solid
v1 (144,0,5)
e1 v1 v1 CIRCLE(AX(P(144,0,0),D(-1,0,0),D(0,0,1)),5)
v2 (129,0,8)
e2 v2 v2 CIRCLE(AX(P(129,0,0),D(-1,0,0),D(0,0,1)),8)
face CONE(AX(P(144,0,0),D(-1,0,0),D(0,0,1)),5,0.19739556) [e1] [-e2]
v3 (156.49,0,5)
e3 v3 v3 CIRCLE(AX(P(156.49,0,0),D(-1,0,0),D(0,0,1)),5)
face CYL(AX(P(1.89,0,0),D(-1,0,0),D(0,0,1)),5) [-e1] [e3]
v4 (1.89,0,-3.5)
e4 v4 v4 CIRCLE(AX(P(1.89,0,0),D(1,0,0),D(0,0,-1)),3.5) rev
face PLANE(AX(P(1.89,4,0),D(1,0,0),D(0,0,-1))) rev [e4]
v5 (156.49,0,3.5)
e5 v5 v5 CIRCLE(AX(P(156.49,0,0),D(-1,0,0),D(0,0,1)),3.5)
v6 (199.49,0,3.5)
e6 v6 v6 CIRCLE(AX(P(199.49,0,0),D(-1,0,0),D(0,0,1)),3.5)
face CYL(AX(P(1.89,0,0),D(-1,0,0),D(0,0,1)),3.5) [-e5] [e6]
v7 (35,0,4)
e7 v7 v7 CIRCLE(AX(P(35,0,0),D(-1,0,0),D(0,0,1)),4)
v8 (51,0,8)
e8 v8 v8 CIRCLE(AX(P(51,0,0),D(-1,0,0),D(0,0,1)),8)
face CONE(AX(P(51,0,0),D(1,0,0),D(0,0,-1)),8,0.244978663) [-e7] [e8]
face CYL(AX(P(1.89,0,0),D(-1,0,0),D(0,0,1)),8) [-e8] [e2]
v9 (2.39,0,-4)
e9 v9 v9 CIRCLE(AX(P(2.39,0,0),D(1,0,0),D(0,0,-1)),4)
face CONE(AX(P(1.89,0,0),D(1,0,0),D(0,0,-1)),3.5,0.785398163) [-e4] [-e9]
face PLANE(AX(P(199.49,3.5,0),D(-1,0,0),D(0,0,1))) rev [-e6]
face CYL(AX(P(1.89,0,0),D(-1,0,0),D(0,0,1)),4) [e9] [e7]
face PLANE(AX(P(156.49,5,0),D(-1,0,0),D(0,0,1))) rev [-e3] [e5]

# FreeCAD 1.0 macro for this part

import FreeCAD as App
import Part
import Sketcher
Q = App.Units.Quantity


def edges_at(feature, points):
    """Names of the edges that pass closest to the given points."""
    edges = feature.Shape.Edges
    near = lambda p: min(range(len(edges)), key=lambda i: edges[i].distToShape(Part.Vertex(*p))[0])
    return sorted({f"Edge{near(p) + 1}" for p in points})


def add_polygon(sketch, points):
    """Adds a closed chain of lines whose ends are joined by coincident constraints."""
    first, n = sketch.GeometryCount, len(points)
    for a, b in zip(points, points[1:] + points[:1]):
        sketch.addGeometry(Part.LineSegment(App.Vector(*a, 0), App.Vector(*b, 0)), False)
    for i in range(n):
        sketch.addConstraint(Sketcher.Constraint("Coincident", first + i, 2, first + (i + 1) % n, 1))

doc = App.newDocument("Part")
params = doc.addObject("Spreadsheet::Sheet", "Params")
for row, (alias, value) in enumerate([
    ("sketch1_width", "43 mm"),
    ("sketch1_width2", "78 mm"),
    ("sketch1_height", "4 mm"),
    ("sketch1_width3", "197.6 mm"),
    ("sketch1_height2", "3.5 mm"),
    ("revolution_angle", "360 deg"),
    ("chamfer_size", "0.5 mm"),
], start=1):
    params.set(f"A{row}", alias)
    params.set(f"B{row}", "=" + value)
    params.setAlias(f"B{row}", alias)

body = doc.addObject("PartDesign::Body", "Body")

# Sketch on XY plane
sketch1 = body.newObject("Sketcher::SketchObject", "Sketch")
sketch1.AttachmentSupport = (doc.getObject("XY_Plane"), [""])
sketch1.MapMode = "FlatFace"
add_polygon(sketch1, [(35, 4), (1.9, 4), (1.9, 0), (199.5, 0), (199.5, 3.5), (156.5, 3.5), (156.5, 5), (144, 5), (129, 8), (51, 8)])  # lines 0-9
sketch1.addConstraint(Sketcher.Constraint("Horizontal", 0))
sketch1.addConstraint(Sketcher.Constraint("Vertical", 1))
sketch1.addConstraint(Sketcher.Constraint("Horizontal", 2))
sketch1.addConstraint(Sketcher.Constraint("Vertical", 3))
sketch1.addConstraint(Sketcher.Constraint("Horizontal", 4))
sketch1.addConstraint(Sketcher.Constraint("Vertical", 5))
sketch1.addConstraint(Sketcher.Constraint("Horizontal", 6))
sketch1.addConstraint(Sketcher.Constraint("Horizontal", 8))
sketch1.addConstraint(Sketcher.Constraint("PointOnObject", 1, 2, -1))
sketch1.addConstraint(Sketcher.Constraint("DistanceX", 4, 2, 4, 1, Q("43 mm")))
sketch1.addConstraint(Sketcher.Constraint("DistanceX", 8, 2, 8, 1, Q("78 mm")))
sketch1.addConstraint(Sketcher.Constraint("DistanceY", 1, 2, 1, 1, Q("4 mm")))
sketch1.addConstraint(Sketcher.Constraint("DistanceX", 2, 1, 2, 2, Q("197.6 mm")))
sketch1.addConstraint(Sketcher.Constraint("DistanceY", 3, 1, 3, 2, Q("3.5 mm")))
sketch1.addConstraint(Sketcher.Constraint("DistanceY", 5, 1, 5, 2, Q("1.5 mm")))
sketch1.addConstraint(Sketcher.Constraint("DistanceX", -1, 1, 6, 2, Q("144 mm")))
sketch1.addConstraint(Sketcher.Constraint("DistanceX", -1, 1, 7, 2, Q("129 mm")))
sketch1.addConstraint(Sketcher.Constraint("DistanceY", -1, 1, 7, 2, Q("8 mm")))
sketch1.addConstraint(Sketcher.Constraint("DistanceX", -1, 1, 9, 2, Q("35 mm")))
sketch1.addConstraint(Sketcher.Constraint("DistanceX", 0, 2, 0, 1, Q("33.11 mm")))
sketch1.setExpression("Constraints[19]", "Params.sketch1_width")
sketch1.setExpression("Constraints[20]", "Params.sketch1_width2")
sketch1.setExpression("Constraints[21]", "Params.sketch1_height")
sketch1.setExpression("Constraints[22]", "Params.sketch1_width3")
sketch1.setExpression("Constraints[23]", "Params.sketch1_height2")
revolution = body.newObject("PartDesign::Revolution", "Revolution")
revolution.Profile = sketch1
revolution.ReferenceAxis = (sketch1, ["H_Axis"])
revolution.setExpression("Angle", "Params.revolution_angle")
doc.recompute()

chamfer = body.newObject("PartDesign::Chamfer", "Chamfer")
chamfer.Base = (revolution, edges_at(revolution, [(1.89, 0, -4)]))
chamfer.setExpression("Size", "Params.chamfer_size")

doc.recompute()
